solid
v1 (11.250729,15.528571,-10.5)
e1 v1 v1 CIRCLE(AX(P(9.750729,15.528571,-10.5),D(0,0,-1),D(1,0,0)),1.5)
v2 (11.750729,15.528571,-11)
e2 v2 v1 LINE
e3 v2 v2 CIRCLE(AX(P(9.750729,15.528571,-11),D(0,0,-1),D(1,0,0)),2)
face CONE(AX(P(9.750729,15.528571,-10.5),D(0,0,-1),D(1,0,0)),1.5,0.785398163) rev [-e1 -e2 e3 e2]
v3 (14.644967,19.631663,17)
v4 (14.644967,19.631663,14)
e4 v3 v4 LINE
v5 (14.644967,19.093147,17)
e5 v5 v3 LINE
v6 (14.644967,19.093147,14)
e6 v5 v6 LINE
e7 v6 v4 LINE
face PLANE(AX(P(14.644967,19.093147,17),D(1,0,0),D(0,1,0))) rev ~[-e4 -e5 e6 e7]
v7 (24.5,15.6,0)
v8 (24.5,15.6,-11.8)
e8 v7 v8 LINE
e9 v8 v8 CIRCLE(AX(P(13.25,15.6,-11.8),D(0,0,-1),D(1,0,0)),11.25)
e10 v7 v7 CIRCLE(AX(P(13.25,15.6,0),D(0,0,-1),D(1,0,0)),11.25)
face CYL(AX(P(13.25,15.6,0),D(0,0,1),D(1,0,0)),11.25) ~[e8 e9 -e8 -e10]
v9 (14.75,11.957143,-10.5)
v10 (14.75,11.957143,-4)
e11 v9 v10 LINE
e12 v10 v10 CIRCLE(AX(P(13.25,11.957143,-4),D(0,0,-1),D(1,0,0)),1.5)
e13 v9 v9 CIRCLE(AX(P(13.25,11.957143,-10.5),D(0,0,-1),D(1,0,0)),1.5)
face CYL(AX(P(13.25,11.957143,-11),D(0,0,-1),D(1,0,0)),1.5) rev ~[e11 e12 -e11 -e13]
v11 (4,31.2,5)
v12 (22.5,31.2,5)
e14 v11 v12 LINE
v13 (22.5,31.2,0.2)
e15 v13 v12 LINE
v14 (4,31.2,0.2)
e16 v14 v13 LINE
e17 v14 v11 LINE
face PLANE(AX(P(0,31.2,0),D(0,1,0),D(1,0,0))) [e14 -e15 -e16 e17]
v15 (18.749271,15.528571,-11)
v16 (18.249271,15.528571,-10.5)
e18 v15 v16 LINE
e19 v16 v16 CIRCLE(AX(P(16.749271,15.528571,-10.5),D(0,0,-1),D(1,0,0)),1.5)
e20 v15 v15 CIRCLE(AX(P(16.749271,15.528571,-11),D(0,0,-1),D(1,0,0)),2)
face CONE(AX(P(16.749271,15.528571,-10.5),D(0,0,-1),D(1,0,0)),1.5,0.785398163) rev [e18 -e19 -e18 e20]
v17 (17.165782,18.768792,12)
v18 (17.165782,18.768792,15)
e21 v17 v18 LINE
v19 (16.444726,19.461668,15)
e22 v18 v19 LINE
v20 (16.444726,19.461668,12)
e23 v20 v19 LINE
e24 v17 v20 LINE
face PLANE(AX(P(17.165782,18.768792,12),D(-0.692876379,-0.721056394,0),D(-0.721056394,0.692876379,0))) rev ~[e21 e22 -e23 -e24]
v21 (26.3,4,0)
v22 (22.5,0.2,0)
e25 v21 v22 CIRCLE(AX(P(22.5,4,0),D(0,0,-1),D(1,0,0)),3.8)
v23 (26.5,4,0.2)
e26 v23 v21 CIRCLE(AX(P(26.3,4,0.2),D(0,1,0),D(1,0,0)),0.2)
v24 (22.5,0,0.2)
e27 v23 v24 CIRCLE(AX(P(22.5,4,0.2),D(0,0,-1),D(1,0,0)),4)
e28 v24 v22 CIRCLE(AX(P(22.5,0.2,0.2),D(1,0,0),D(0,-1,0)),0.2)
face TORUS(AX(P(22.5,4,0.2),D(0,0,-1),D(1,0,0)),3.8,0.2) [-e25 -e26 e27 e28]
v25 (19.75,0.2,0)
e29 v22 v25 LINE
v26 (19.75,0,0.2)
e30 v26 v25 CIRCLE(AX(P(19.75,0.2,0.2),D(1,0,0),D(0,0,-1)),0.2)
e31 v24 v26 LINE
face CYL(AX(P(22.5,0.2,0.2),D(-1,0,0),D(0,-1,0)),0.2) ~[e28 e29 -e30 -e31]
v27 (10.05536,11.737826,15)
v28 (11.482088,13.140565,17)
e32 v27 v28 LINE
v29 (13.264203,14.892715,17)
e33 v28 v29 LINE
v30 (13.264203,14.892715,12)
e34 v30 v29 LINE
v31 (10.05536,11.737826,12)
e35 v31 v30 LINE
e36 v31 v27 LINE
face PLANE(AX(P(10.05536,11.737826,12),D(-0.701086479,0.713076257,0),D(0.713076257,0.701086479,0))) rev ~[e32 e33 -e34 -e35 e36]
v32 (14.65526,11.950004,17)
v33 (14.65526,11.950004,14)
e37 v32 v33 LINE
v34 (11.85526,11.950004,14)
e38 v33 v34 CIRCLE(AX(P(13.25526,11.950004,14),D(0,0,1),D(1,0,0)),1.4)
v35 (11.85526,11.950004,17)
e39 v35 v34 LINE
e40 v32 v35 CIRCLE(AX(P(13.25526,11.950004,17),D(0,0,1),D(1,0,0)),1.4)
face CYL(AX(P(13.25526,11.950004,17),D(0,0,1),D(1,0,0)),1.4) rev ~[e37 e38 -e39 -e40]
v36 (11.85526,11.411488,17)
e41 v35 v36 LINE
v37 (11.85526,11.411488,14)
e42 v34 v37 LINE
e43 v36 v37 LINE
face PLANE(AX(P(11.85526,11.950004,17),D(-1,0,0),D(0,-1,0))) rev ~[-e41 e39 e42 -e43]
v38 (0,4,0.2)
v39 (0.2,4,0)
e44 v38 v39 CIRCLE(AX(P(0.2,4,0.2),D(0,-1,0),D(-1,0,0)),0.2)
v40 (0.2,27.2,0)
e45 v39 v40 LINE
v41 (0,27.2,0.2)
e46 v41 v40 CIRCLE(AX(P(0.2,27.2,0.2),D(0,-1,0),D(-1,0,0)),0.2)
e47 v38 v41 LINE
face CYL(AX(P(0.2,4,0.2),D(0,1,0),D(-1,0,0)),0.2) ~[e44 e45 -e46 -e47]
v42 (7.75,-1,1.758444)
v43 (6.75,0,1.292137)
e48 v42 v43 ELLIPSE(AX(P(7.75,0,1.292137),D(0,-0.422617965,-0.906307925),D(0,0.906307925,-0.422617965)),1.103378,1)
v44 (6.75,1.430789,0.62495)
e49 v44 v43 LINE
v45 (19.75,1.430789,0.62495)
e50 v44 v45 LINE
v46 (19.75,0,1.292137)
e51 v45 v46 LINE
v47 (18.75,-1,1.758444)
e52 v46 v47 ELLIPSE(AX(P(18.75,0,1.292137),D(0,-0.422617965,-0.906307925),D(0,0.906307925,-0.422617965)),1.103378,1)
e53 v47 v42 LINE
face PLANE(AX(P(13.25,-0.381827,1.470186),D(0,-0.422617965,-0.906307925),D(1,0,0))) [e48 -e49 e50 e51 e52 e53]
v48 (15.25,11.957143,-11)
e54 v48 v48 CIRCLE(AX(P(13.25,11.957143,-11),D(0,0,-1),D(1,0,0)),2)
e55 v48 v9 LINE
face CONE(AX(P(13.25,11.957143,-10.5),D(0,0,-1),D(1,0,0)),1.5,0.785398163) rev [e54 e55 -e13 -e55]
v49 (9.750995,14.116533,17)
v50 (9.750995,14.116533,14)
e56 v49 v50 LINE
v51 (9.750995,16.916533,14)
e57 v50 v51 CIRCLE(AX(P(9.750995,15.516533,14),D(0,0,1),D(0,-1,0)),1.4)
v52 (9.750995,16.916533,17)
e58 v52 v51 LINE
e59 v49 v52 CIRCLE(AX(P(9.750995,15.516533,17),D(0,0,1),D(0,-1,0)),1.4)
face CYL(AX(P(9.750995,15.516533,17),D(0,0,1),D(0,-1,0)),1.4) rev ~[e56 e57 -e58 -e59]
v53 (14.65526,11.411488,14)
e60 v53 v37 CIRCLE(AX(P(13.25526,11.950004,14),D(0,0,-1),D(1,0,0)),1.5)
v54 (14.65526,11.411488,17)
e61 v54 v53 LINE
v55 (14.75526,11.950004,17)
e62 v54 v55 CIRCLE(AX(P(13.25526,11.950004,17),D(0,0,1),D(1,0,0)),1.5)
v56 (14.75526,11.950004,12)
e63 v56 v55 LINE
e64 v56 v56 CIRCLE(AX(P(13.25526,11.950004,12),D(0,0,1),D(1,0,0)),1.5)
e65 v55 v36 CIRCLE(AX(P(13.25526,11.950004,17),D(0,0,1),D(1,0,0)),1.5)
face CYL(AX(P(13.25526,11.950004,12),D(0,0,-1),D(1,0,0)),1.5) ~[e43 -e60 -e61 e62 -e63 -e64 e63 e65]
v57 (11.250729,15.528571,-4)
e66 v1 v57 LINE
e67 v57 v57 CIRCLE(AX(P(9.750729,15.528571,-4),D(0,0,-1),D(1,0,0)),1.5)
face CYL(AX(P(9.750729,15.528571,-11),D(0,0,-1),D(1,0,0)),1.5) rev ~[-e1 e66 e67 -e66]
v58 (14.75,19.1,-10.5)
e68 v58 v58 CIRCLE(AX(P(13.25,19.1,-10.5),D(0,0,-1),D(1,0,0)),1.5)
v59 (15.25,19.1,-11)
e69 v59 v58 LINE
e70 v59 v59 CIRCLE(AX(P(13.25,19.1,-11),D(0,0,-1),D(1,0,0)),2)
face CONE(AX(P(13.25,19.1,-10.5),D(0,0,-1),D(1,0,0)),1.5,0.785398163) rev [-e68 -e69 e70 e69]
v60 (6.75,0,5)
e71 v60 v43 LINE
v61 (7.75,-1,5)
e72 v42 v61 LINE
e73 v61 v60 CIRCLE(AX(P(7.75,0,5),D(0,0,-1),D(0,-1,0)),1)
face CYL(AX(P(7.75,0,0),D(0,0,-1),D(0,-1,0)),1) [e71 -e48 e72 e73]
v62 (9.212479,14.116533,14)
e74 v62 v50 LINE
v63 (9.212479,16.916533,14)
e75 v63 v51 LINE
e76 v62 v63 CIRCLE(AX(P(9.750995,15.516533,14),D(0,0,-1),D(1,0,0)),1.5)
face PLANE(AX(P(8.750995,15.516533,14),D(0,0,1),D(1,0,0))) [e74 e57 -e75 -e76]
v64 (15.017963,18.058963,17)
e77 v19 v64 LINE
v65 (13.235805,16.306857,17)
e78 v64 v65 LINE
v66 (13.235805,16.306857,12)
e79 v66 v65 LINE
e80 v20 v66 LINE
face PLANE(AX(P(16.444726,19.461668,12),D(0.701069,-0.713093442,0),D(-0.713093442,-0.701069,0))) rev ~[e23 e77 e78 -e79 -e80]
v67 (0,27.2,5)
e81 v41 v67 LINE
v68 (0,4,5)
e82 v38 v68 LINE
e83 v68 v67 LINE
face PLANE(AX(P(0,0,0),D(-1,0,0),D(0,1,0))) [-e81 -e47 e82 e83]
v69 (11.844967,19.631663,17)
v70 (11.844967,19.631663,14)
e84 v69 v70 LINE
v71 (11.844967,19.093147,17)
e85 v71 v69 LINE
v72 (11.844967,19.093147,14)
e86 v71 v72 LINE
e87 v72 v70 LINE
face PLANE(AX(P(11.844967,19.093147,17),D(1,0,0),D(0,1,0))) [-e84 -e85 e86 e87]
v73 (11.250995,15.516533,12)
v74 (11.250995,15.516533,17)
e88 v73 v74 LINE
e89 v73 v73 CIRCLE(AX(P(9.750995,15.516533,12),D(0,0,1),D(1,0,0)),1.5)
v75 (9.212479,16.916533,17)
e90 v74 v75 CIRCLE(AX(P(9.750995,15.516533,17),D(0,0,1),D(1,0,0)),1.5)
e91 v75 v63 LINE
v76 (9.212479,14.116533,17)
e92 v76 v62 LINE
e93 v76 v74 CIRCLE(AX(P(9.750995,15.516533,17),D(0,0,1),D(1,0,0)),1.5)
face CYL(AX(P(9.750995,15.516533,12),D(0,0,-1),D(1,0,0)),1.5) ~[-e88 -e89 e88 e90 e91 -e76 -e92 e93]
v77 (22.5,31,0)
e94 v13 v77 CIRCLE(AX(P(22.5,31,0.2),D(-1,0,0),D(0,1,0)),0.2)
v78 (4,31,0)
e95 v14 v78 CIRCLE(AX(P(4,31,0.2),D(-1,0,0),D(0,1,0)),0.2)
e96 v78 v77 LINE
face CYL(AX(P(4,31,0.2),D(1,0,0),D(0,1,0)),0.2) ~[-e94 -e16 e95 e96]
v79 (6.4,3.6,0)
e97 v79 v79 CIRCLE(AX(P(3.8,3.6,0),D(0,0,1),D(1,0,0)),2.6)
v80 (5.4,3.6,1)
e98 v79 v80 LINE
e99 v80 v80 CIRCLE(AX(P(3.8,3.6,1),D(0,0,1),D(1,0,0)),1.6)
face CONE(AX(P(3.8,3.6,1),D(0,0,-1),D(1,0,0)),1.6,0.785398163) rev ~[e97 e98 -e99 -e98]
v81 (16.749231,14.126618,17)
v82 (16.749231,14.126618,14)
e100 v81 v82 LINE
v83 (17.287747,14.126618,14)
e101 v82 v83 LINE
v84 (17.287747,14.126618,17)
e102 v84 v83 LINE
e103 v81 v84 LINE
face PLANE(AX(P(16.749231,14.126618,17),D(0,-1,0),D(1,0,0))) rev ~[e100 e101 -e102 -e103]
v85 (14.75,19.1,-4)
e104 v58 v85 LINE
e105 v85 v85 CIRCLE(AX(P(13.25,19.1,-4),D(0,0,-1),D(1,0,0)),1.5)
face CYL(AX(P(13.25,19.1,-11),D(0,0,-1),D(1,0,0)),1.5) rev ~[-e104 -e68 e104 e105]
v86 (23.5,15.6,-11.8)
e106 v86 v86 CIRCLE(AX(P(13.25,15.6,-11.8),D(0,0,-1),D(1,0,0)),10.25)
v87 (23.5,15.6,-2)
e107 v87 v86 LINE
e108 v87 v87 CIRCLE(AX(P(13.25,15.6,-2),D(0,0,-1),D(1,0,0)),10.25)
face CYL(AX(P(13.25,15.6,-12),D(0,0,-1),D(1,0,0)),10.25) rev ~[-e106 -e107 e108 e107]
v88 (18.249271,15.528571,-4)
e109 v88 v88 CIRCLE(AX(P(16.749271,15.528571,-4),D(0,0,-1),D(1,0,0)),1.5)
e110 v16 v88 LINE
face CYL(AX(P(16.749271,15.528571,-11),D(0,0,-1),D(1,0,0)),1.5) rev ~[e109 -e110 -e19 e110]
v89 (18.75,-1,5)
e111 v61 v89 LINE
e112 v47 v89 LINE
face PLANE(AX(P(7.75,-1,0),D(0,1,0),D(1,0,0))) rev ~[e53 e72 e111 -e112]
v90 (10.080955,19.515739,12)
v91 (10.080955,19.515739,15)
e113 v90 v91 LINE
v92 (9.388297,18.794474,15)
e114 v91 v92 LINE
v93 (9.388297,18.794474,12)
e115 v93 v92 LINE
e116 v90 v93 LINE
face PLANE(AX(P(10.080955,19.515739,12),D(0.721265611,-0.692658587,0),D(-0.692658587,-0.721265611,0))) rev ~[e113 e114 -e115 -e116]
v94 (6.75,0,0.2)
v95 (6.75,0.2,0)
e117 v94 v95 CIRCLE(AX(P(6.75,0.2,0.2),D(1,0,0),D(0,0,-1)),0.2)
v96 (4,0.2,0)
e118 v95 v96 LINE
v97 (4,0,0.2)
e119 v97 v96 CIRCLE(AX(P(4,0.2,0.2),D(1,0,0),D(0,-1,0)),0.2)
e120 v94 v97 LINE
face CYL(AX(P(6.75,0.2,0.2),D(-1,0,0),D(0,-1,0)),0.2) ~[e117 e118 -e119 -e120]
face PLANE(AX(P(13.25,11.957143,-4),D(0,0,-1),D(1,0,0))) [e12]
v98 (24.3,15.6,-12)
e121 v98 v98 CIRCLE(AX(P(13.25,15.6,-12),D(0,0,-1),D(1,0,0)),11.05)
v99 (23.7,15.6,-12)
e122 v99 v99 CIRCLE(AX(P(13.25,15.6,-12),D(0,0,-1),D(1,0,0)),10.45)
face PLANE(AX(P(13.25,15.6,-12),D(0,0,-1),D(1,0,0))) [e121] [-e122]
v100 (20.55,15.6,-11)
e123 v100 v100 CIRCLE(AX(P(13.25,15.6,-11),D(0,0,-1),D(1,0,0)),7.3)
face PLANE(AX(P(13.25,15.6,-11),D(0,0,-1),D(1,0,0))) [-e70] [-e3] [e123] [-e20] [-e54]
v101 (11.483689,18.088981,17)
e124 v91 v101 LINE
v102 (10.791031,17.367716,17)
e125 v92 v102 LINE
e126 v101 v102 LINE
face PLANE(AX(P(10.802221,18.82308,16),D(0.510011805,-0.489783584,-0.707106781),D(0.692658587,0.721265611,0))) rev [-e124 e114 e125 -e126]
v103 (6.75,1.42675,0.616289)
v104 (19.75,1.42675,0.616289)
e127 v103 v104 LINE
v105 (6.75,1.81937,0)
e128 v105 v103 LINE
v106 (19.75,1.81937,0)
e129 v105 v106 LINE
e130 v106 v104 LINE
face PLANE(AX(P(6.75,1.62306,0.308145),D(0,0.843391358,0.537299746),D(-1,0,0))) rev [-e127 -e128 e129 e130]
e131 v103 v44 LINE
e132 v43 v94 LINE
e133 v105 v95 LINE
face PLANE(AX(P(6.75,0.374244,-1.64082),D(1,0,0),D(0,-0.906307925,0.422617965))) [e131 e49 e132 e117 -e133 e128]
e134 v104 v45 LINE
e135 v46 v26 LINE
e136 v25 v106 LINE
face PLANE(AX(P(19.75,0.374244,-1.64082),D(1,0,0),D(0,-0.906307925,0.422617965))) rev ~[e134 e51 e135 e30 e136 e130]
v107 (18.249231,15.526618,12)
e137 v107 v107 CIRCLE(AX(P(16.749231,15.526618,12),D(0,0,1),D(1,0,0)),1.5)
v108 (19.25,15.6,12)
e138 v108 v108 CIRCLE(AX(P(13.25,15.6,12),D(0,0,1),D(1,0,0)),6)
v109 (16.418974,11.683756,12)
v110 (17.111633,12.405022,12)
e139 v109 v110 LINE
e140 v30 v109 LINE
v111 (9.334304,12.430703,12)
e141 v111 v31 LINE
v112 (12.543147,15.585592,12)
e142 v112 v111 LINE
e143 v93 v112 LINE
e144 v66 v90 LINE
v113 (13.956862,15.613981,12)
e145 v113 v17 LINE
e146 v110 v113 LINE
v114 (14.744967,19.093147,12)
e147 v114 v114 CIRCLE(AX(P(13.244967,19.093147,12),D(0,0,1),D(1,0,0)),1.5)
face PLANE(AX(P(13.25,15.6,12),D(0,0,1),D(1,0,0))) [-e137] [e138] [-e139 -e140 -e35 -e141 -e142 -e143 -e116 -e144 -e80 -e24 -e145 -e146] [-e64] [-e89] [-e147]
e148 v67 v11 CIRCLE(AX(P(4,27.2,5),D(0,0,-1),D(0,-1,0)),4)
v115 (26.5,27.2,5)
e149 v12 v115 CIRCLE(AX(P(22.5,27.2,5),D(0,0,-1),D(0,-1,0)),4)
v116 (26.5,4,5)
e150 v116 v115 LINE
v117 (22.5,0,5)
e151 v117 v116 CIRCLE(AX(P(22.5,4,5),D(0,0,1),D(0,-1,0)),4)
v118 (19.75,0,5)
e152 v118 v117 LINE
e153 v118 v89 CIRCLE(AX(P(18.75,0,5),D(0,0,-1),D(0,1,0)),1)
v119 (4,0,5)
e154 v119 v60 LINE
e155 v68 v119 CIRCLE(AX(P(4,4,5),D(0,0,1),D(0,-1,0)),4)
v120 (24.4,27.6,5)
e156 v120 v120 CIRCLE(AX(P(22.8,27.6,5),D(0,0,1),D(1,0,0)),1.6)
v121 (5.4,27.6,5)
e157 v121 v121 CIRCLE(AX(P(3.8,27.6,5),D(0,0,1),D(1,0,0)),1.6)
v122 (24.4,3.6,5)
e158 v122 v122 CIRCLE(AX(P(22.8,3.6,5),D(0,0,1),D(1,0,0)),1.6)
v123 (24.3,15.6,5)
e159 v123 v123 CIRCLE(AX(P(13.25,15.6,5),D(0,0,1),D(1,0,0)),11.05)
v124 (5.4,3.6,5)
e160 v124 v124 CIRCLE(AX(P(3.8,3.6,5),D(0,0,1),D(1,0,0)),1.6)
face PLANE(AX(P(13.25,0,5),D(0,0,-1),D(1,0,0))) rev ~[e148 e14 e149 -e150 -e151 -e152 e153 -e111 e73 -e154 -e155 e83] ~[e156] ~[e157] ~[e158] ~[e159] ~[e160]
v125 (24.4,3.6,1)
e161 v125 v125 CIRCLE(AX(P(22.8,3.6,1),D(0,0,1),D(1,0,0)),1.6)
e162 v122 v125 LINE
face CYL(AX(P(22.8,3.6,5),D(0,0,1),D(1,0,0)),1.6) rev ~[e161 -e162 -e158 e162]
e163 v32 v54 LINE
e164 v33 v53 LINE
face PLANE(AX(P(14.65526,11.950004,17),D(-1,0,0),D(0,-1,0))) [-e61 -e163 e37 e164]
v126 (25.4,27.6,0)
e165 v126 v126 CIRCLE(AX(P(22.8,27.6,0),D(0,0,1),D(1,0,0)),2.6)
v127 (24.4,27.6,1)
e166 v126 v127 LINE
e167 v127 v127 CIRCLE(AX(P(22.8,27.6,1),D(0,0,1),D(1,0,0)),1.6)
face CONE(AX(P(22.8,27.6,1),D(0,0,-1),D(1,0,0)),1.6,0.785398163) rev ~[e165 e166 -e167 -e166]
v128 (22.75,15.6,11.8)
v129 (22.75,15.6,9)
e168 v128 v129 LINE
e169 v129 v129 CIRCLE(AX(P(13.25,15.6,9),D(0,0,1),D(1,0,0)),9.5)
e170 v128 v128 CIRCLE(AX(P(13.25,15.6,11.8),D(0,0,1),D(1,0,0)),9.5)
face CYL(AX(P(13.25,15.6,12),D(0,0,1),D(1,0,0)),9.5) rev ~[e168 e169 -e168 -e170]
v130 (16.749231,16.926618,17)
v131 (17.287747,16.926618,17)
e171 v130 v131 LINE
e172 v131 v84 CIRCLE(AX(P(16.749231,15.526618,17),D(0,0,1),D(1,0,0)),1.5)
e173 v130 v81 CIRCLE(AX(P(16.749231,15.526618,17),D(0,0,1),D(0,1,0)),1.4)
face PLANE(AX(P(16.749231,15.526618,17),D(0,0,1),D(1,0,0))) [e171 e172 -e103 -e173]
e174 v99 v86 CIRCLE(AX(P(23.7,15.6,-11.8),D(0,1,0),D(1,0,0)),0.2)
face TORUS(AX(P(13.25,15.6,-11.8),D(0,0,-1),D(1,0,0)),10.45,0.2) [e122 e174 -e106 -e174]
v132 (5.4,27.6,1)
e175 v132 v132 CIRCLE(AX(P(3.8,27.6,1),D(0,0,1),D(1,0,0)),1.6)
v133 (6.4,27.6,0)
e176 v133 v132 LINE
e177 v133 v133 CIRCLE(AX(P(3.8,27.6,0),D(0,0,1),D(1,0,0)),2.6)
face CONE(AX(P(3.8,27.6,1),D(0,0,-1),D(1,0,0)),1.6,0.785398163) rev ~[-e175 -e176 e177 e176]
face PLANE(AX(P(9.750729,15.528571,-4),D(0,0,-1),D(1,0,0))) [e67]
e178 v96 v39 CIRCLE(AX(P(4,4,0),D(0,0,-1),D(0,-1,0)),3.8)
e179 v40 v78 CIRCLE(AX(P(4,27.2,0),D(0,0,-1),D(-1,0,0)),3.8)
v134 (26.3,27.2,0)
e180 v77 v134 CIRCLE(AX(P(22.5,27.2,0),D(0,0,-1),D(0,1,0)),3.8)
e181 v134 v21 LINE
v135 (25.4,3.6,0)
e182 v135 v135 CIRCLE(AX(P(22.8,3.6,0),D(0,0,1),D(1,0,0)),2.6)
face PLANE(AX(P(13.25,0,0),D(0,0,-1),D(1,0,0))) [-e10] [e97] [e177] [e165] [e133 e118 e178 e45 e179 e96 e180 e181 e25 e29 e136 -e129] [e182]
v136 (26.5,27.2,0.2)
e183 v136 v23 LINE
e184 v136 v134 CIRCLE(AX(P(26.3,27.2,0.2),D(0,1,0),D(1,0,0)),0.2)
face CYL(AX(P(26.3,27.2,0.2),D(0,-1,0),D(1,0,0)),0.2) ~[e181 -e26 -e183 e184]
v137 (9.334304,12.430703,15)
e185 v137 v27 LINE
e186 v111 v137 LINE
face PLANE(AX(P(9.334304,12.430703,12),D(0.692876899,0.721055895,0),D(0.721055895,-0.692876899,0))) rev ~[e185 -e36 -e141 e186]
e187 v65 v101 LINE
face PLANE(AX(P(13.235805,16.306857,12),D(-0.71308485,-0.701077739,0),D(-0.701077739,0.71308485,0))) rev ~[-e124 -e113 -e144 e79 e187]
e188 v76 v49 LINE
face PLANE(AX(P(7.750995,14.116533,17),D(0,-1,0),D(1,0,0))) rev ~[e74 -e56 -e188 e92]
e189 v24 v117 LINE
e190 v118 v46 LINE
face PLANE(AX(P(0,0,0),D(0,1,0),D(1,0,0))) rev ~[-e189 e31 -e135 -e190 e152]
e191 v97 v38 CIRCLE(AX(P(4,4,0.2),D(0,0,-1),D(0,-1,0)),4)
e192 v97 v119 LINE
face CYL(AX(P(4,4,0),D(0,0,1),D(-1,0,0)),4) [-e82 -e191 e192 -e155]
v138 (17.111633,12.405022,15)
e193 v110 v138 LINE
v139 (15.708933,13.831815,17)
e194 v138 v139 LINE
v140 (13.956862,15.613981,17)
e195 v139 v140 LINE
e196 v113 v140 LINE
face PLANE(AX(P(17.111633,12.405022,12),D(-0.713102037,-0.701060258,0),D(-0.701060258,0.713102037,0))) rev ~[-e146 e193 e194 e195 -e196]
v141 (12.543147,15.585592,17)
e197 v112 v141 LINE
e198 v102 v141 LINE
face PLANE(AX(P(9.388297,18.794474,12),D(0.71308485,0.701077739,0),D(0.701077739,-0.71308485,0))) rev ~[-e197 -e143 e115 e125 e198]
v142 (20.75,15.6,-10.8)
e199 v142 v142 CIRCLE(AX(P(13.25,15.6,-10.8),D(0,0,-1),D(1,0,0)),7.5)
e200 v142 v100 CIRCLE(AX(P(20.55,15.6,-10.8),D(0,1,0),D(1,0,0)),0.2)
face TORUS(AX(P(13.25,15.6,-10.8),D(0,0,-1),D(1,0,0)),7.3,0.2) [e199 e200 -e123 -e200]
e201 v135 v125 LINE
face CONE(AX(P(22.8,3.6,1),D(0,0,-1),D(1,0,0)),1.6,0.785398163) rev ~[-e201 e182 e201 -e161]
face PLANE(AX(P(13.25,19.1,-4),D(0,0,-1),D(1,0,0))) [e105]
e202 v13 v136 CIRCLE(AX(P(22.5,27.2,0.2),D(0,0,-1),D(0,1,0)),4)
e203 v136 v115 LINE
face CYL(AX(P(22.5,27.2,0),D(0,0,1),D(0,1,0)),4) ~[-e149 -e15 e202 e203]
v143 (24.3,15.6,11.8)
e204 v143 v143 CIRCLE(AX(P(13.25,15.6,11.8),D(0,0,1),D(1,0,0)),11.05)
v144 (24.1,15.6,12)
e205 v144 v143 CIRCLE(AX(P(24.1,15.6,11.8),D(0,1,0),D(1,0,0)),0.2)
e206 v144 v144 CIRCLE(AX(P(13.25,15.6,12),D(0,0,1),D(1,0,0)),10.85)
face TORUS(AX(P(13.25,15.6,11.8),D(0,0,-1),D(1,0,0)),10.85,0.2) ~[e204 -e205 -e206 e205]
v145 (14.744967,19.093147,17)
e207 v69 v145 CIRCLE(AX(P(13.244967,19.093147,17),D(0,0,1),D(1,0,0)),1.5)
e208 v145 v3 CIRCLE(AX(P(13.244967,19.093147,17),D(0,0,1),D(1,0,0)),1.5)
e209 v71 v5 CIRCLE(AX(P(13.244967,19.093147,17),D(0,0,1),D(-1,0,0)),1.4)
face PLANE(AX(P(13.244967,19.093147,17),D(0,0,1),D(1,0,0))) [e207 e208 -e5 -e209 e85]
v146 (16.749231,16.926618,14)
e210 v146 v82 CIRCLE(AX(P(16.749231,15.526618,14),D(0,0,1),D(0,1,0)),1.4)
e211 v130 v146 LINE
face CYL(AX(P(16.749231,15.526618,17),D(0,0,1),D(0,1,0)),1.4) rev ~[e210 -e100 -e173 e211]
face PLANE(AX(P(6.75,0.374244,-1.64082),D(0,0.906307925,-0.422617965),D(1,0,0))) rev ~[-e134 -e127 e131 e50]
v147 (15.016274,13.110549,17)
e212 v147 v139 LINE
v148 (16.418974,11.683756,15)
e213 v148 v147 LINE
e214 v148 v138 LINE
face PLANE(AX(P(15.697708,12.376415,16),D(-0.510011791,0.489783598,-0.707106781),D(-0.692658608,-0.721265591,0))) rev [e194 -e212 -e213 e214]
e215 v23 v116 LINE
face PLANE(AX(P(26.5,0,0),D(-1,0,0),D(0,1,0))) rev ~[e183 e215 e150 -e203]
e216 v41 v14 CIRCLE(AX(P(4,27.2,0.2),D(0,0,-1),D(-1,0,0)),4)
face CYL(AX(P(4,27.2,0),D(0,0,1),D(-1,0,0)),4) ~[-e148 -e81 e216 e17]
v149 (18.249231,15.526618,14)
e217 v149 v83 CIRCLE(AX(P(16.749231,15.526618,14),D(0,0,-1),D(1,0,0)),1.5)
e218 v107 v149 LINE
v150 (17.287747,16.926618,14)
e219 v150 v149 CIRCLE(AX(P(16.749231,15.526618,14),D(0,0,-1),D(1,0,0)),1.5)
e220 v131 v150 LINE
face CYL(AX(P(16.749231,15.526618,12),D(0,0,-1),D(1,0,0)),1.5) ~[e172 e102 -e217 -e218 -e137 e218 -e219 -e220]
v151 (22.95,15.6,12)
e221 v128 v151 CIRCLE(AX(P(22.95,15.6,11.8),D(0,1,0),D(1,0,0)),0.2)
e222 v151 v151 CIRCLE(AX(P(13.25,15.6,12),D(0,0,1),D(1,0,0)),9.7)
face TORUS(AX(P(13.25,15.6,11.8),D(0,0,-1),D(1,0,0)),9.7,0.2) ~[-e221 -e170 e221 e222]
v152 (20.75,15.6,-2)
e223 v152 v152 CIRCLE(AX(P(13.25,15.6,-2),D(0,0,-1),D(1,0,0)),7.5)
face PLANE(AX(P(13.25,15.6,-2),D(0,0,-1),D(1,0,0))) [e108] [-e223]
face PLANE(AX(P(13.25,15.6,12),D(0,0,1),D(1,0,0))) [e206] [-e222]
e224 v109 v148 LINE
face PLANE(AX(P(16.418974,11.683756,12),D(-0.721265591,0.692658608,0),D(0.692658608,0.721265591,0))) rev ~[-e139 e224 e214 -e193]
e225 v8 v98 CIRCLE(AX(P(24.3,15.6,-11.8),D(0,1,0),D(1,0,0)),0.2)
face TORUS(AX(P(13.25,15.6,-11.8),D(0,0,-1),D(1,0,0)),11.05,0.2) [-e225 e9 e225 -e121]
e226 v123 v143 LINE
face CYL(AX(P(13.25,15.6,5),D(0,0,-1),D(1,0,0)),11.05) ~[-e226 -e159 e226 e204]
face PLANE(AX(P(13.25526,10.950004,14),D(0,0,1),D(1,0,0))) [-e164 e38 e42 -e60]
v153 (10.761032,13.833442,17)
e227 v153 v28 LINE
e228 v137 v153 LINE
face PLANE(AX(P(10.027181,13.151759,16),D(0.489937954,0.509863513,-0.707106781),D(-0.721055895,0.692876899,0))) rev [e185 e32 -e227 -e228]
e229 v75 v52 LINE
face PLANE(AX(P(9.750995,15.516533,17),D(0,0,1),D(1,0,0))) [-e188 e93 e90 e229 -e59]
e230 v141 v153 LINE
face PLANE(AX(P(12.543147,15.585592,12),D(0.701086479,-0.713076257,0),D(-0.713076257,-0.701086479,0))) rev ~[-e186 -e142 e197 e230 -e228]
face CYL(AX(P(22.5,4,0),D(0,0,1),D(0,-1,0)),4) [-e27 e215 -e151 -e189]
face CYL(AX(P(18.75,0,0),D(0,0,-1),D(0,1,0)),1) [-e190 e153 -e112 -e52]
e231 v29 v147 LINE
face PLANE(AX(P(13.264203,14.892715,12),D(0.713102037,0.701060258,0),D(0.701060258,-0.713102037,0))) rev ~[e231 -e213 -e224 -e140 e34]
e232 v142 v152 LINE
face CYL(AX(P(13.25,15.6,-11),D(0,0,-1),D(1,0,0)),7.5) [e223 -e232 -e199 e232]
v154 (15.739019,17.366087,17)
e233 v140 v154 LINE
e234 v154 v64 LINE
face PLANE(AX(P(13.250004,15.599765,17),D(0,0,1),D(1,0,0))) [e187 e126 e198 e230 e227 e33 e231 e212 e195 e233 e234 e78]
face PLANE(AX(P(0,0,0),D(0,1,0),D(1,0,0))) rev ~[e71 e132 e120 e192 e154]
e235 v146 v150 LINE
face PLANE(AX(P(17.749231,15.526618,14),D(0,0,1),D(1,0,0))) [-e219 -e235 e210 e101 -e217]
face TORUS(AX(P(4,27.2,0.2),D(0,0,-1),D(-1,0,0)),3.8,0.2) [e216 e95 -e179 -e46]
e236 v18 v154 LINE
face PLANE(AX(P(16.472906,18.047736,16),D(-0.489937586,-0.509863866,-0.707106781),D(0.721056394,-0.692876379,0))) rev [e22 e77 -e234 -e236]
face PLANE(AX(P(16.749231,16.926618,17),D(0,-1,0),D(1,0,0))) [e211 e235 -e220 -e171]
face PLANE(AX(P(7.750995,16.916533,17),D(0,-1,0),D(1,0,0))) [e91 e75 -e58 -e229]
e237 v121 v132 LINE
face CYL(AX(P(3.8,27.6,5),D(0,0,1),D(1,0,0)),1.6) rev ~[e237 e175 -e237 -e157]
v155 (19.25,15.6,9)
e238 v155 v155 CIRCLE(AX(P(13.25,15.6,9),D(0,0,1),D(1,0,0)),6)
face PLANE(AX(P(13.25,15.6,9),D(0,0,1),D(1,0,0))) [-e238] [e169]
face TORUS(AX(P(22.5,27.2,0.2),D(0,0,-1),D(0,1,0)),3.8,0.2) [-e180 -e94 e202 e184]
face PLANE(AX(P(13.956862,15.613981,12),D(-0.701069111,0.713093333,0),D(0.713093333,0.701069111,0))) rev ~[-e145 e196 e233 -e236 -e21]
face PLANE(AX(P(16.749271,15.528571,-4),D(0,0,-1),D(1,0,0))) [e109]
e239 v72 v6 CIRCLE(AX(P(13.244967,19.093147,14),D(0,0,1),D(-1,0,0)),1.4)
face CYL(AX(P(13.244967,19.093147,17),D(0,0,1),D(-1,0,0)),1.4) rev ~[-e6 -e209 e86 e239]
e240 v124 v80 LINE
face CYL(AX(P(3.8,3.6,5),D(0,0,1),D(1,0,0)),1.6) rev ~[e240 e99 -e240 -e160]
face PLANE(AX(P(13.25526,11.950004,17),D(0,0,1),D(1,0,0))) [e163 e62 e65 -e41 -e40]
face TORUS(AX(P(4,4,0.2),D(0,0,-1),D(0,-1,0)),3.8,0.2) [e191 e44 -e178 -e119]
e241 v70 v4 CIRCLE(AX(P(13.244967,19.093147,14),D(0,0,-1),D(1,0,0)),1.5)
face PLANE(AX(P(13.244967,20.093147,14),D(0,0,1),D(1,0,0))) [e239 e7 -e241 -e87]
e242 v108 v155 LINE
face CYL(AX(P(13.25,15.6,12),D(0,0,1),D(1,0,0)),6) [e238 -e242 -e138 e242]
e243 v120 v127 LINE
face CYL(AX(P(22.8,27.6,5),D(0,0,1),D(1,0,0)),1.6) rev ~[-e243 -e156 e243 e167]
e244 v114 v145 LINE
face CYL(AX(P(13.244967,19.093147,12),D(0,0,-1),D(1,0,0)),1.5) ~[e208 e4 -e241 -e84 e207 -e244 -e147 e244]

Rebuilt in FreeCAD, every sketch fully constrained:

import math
import FreeCAD as App
import Part
import Sketcher
from FreeCAD import Vector
Q = App.Units.Quantity


def edges_at(feature, points):
    """Names of the edges that pass closest to the given points."""
    edges = feature.Shape.Edges
    near = lambda p: min(range(len(edges)), key=lambda i: edges[i].distToShape(Part.Vertex(*p))[0])
    return sorted({f"Edge{near(p) + 1}" for p in points})

doc = App.newDocument("Part")
params = doc.addObject("Spreadsheet::Sheet", "Params")
for row, (alias, value) in enumerate([
    ("sketch1_width", "26.5 mm"),
    ("sketch1_height", "31.2 mm"),
    ("pad1_length", "5 mm"),
    ("sketch2_diameter", "3.2 mm"),
    ("pocket1_length", "5 mm"),
    ("fillet_radius", "4 mm"),
    ("sketch3_diameter", "22.5 mm"),
    ("pad2_length", "12 mm"),
    ("sketch4_diameter", "22.1 mm"),
    ("pad3_length", "7 mm"),
    ("chamfer_size", "1 mm"),
    ("sketch5_radius", "1 mm"),
    ("sketch5_width", "11 mm"),
    ("pad4_length", "5 mm"),
    ("sketch6_width", "13 mm"),
    ("sketch6_height", "4 mm"),
    ("pocket2_length", "2.5 mm"),
    ("chamfer2_size", "0.68 mm"),
    ("sketch7_diameter", "20.5 mm"),
    ("pocket3_length", "1 mm"),
    ("sketch8_diameter", "15 mm"),
    ("sketch8_diameter2", "20.5 mm"),
    ("pocket4_length", "9 mm"),
    ("sketch9_diameter", "3 mm"),
    ("pocket5_length", "7 mm"),
    ("chamfer3_size", "0.5 mm"),
    ("sketch10_diameter", "3 mm"),
    ("sketch10_length", "0.999999 mm"),
    ("sketch10_length2", "4.5 mm"),
    ("pad5_length", "5 mm"),
    ("chamfer4_size", "2 mm"),
    ("sketch11_radius", "1.4 mm"),
    ("sketch11_width", "2 mm"),
    ("pocket6_length", "3 mm"),
    ("sketch12_diameter", "19 mm"),
    ("sketch12_diameter2", "12 mm"),
    ("pocket7_length", "3 mm"),
    ("fillet2_radius", "0.2 mm"),
], start=1):
    params.set(f"A{row}", alias)
    params.set(f"B{row}", "=" + value)
    params.setAlias(f"B{row}", alias)

body = doc.addObject("PartDesign::Body", "Body")

sketch1 = body.newObject("Sketcher::SketchObject", "Sketch")
sketch1.AttachmentSupport = (doc.getObject("XY_Plane"), [""])
sketch1.MapMode = "FlatFace"
sketch1.addGeometry([
    Part.LineSegment(Vector(0, 31.2, 0), Vector(0, 0, 0)),
    Part.LineSegment(Vector(0, 0, 0), Vector(26.5, 0, 0)),
    Part.LineSegment(Vector(26.5, 0, 0), Vector(26.5, 31.2, 0)),
    Part.LineSegment(Vector(26.5, 31.2, 0), Vector(0, 31.2, 0)),
], False)
sketch1.addConstraint([
    Sketcher.Constraint("Coincident", 0, 2, 1, 1),
    Sketcher.Constraint("Coincident", 1, 2, 2, 1),
    Sketcher.Constraint("Coincident", 2, 2, 3, 1),
    Sketcher.Constraint("Coincident", 3, 2, 0, 1),
    Sketcher.Constraint("Vertical", 0),
    Sketcher.Constraint("Horizontal", 1),
    Sketcher.Constraint("Vertical", 2),
    Sketcher.Constraint("Horizontal", 3),
    Sketcher.Constraint("Coincident", 0, 2, -1, 1),
    Sketcher.Constraint("DistanceX", 1, 1, 1, 2, Q("26.5 mm")),
    Sketcher.Constraint("DistanceY", 0, 2, 0, 1, Q("31.2 mm")),
])
sketch1.setExpression("Constraints[9]", "Params.sketch1_width")
sketch1.setExpression("Constraints[10]", "Params.sketch1_height")
pad1 = body.newObject("PartDesign::Pad", "Pad")
pad1.Profile = sketch1
pad1.setExpression("Length", "Params.pad1_length")

sketch2 = body.newObject("Sketcher::SketchObject", "Sketch001")
sketch2.AttachmentSupport = (doc.getObject("XY_Plane"), [""])
sketch2.MapMode = "FlatFace"
sketch2.AttachmentOffset = App.Placement(Vector(0, 0, 5), App.Rotation())
sketch2.addGeometry([
    Part.Circle(Vector(3.8, 27.6, 0), Vector(0, 0, 1), 1.6),
    Part.Circle(Vector(22.8, 27.6, 0), Vector(0, 0, 1), 1.6),
    Part.Circle(Vector(22.8, 3.6, 0), Vector(0, 0, 1), 1.6),
    Part.Circle(Vector(3.8, 3.6, 0), Vector(0, 0, 1), 1.6),
], False)
sketch2.addConstraint([
    Sketcher.Constraint("Equal", 0, 1),
    Sketcher.Constraint("Equal", 1, 2),
    Sketcher.Constraint("Equal", 2, 3),
    Sketcher.Constraint("Horizontal", 0, 3, 1, 3),
    Sketcher.Constraint("Horizontal", 2, 3, 3, 3),
    Sketcher.Constraint("Vertical", 1, 3, 2, 3),
    Sketcher.Constraint("Vertical", 0, 3, 3, 3),
    Sketcher.Constraint("Diameter", 0, Q("3.2 mm")),
    Sketcher.Constraint("DistanceX", 0, 3, 1, 3, Q("19 mm")),
    Sketcher.Constraint("DistanceY", 2, 3, 1, 3, Q("24 mm")),
    Sketcher.Constraint("DistanceX", -1, 1, 0, 3, Q("3.8 mm")),
    Sketcher.Constraint("DistanceY", -1, 1, 0, 3, Q("27.6 mm")),
])
sketch2.setExpression("Constraints[7]", "Params.sketch2_diameter")
pocket1 = body.newObject("PartDesign::Pocket", "Pocket")
pocket1.Profile = sketch2
pocket1.setExpression("Length", "Params.pocket1_length")
doc.recompute()

fillet = body.newObject("PartDesign::Fillet", "Fillet")
fillet.Base = (pocket1, edges_at(pocket1, [
    (26.5, 31.2, 2.5),
    (26.5, 0, 2.5),
    (0, 31.2, 2.5),
    (0, 0, 2.5),
]))
fillet.setExpression("Radius", "Params.fillet_radius")

sketch3 = body.newObject("Sketcher::SketchObject", "Sketch002")
sketch3.AttachmentSupport = (doc.getObject("XY_Plane"), [""])
sketch3.MapMode = "FlatFace"
sketch3.addGeometry(Part.Circle(Vector(13.25, 15.6, 0), Vector(0, 0, 1), 11.25), False)
sketch3.addConstraint([
    Sketcher.Constraint("Diameter", 0, Q("22.5 mm")),
    Sketcher.Constraint("DistanceY", -1, 1, 0, 3, Q("15.6 mm")),
    Sketcher.Constraint("DistanceX", -1, 1, 0, 3, Q("13.25 mm")),
])
sketch3.setExpression("Constraints[0]", "Params.sketch3_diameter")
pad2 = body.newObject("PartDesign::Pad", "Pad001")
pad2.Profile = sketch3
pad2.setExpression("Length", "Params.pad2_length")
pad2.Reversed = True

sketch4 = body.newObject("Sketcher::SketchObject", "Sketch003")
sketch4.AttachmentSupport = (doc.getObject("XY_Plane"), [""])
sketch4.MapMode = "FlatFace"
sketch4.AttachmentOffset = App.Placement(Vector(0, 0, 5), App.Rotation())
sketch4.addGeometry(Part.Circle(Vector(13.25, 15.6, 0), Vector(0, 0, 1), 11.05), False)
sketch4.addConstraint([
    Sketcher.Constraint("Diameter", 0, Q("22.1 mm")),
    Sketcher.Constraint("DistanceY", -1, 1, 0, 3, Q("15.6 mm")),
    Sketcher.Constraint("DistanceX", -1, 1, 0, 3, Q("13.25 mm")),
])
sketch4.setExpression("Constraints[0]", "Params.sketch4_diameter")
pad3 = body.newObject("PartDesign::Pad", "Pad002")
pad3.Profile = sketch4
pad3.setExpression("Length", "Params.pad3_length")
doc.recompute()

chamfer = body.newObject("PartDesign::Chamfer", "Chamfer")
chamfer.Base = (pad3, edges_at(pad3, [
    (21.2, 27.6, 0),
    (2.2, 3.6, 0),
    (21.2, 3.6, 0),
    (2.2, 27.6, 0),
]))
chamfer.setExpression("Size", "Params.chamfer_size")

sketch5 = body.newObject("Sketcher::SketchObject", "Sketch004")
sketch5.AttachmentSupport = (doc.getObject("XY_Plane"), [""])
sketch5.MapMode = "FlatFace"
sketch5.addGeometry([
    Part.ArcOfCircle(Part.Circle(Vector(7.75, 0, 0), Vector(0, 0, 1), 1), math.radians(90), math.radians(270)),
    Part.LineSegment(Vector(7.75, 1, 0), Vector(18.75, 1, 0)),
    Part.ArcOfCircle(Part.Circle(Vector(18.75, 0, 0), Vector(0, 0, 1), 1), math.radians(-90), math.radians(90)),
    Part.LineSegment(Vector(18.75, -1, 0), Vector(7.75, -1, 0)),
], False)
sketch5.addConstraint([
    Sketcher.Constraint("Tangent", 0, 1, 1, 1),
    Sketcher.Constraint("Tangent", 1, 2, 2, 2),
    Sketcher.Constraint("Tangent", 2, 1, 3, 1),
    Sketcher.Constraint("Tangent", 3, 2, 0, 2),
    Sketcher.Constraint("Horizontal", 1),
    Sketcher.Constraint("Horizontal", 3),
    Sketcher.Constraint("PointOnObject", 0, 3, -1),
    Sketcher.Constraint("Radius", 0, Q("1 mm")),
    Sketcher.Constraint("DistanceX", 1, 1, 1, 2, Q("11 mm")),
    Sketcher.Constraint("DistanceX", -1, 1, 0, 3, Q("7.75 mm")),
])
sketch5.setExpression("Constraints[7]", "Params.sketch5_radius")
sketch5.setExpression("Constraints[8]", "Params.sketch5_width")
pad4 = body.newObject("PartDesign::Pad", "Pad003")
pad4.Profile = sketch5
pad4.setExpression("Length", "Params.pad4_length")

sketch6 = body.newObject("Sketcher::SketchObject", "Sketch005")
sketch6.Placement = App.Placement(Vector(0, -1, -1), App.Rotation(Vector(1, 0, 0), Vector(0, -0.906307925, 0.422617965), Vector(0, -0.422617965, -0.906307925), "ZXY"))
sketch6.addGeometry([
    Part.LineSegment(Vector(6.75, 2.48369, 0), Vector(6.75, -1.51631, 0)),
    Part.LineSegment(Vector(6.75, -1.51631, 0), Vector(19.75, -1.51631, 0)),
    Part.LineSegment(Vector(19.75, -1.51631, 0), Vector(19.75, 2.48369, 0)),
    Part.LineSegment(Vector(19.75, 2.48369, 0), Vector(6.75, 2.48369, 0)),
], False)
sketch6.addConstraint([
    Sketcher.Constraint("Coincident", 0, 2, 1, 1),
    Sketcher.Constraint("Coincident", 1, 2, 2, 1),
    Sketcher.Constraint("Coincident", 2, 2, 3, 1),
    Sketcher.Constraint("Coincident", 3, 2, 0, 1),
    Sketcher.Constraint("Vertical", 0),
    Sketcher.Constraint("Horizontal", 1),
    Sketcher.Constraint("Vertical", 2),
    Sketcher.Constraint("Horizontal", 3),
    Sketcher.Constraint("DistanceX", 1, 1, 1, 2, Q("13 mm")),
    Sketcher.Constraint("DistanceY", 0, 2, 0, 1, Q("4 mm")),
    Sketcher.Constraint("DistanceX", -1, 1, 0, 2, Q("6.75 mm")),
    Sketcher.Constraint("DistanceY", 0, 2, -1, 1, Q("1.51631 mm")),
])
sketch6.setExpression("Constraints[8]", "Params.sketch6_width")
sketch6.setExpression("Constraints[9]", "Params.sketch6_height")
pocket2 = body.newObject("PartDesign::Pocket", "Pocket001")
pocket2.Profile = sketch6
pocket2.setExpression("Length", "Params.pocket2_length")
doc.recompute()

chamfer2 = body.newObject("PartDesign::Chamfer", "Chamfer001")
chamfer2.Base = (pocket2, edges_at(pocket2, [(13.25, 1.139, 0)]))
chamfer2.setExpression("Size", "Params.chamfer2_size")

sketch7 = body.newObject("Sketcher::SketchObject", "Sketch006")
sketch7.AttachmentSupport = (doc.getObject("XY_Plane"), [""])
sketch7.MapMode = "FlatFace"
sketch7.AttachmentOffset = App.Placement(Vector(0, 0, -12), App.Rotation())
sketch7.addGeometry(Part.Circle(Vector(13.25, 15.6, 0), Vector(0, 0, 1), 10.25), False)
sketch7.addConstraint([
    Sketcher.Constraint("Diameter", 0, Q("20.5 mm")),
    Sketcher.Constraint("DistanceY", -1, 1, 0, 3, Q("15.6 mm")),
    Sketcher.Constraint("DistanceX", -1, 1, 0, 3, Q("13.25 mm")),
])
sketch7.setExpression("Constraints[0]", "Params.sketch7_diameter")
pocket3 = body.newObject("PartDesign::Pocket", "Pocket002")
pocket3.Profile = sketch7
pocket3.setExpression("Length", "Params.pocket3_length")
pocket3.Reversed = True

sketch8 = body.newObject("Sketcher::SketchObject", "Sketch007")
sketch8.AttachmentSupport = (doc.getObject("XY_Plane"), [""])
sketch8.MapMode = "FlatFace"
sketch8.AttachmentOffset = App.Placement(Vector(0, 0, -11), App.Rotation())
sketch8.addGeometry([
    Part.Circle(Vector(13.25, 15.6, 0), Vector(0, 0, 1), 10.25),
    Part.Circle(Vector(13.25, 15.6, 0), Vector(0, 0, 1), 7.5),
], False)
sketch8.addConstraint([
    Sketcher.Constraint("Coincident", 1, 3, 0, 3),
    Sketcher.Constraint("Diameter", 1, Q("15 mm")),
    Sketcher.Constraint("Diameter", 0, Q("20.5 mm")),
    Sketcher.Constraint("DistanceY", -1, 1, 0, 3, Q("15.6 mm")),
    Sketcher.Constraint("DistanceX", -1, 1, 0, 3, Q("13.25 mm")),
])
sketch8.setExpression("Constraints[1]", "Params.sketch8_diameter")
sketch8.setExpression("Constraints[2]", "Params.sketch8_diameter2")
pocket4 = body.newObject("PartDesign::Pocket", "Pocket003")
pocket4.Profile = sketch8
pocket4.setExpression("Length", "Params.pocket4_length")
pocket4.Reversed = True

sketch9 = body.newObject("Sketcher::SketchObject", "Sketch008")
sketch9.AttachmentSupport = (doc.getObject("XY_Plane"), [""])
sketch9.MapMode = "FlatFace"
sketch9.AttachmentOffset = App.Placement(Vector(0, 0, -11), App.Rotation())
sketch9.addGeometry([
    Part.Circle(Vector(13.25, 11.957143, 0), Vector(0, 0, 1), 1.5),
    Part.Circle(Vector(16.749271, 15.528571, 0), Vector(0, 0, 1), 1.5),
    Part.Circle(Vector(9.750729, 15.528571, 0), Vector(0, 0, 1), 1.5),
    Part.Circle(Vector(13.25, 19.1, 0), Vector(0, 0, 1), 1.5),
], False)
sketch9.addConstraint([
    Sketcher.Constraint("Equal", 0, 1),
    Sketcher.Constraint("Equal", 1, 2),
    Sketcher.Constraint("Equal", 2, 3),
    Sketcher.Constraint("Horizontal", 1, 3, 2, 3),
    Sketcher.Constraint("Vertical", 0, 3, 3, 3),
    Sketcher.Constraint("Diameter", 0, Q("3 mm")),
    Sketcher.Constraint("DistanceY", -1, 1, 3, 3, Q("19.1 mm")),
    Sketcher.Constraint("DistanceX", -1, 1, 0, 3, Q("13.25 mm")),
    Sketcher.Constraint("DistanceX", -1, 1, 1, 3, Q("16.749271 mm")),
    Sketcher.Constraint("DistanceY", -1, 1, 1, 3, Q("15.528571 mm")),
    Sketcher.Constraint("DistanceX", -1, 1, 2, 3, Q("9.750729 mm")),
    Sketcher.Constraint("DistanceY", -1, 1, 0, 3, Q("11.957143 mm")),
])
sketch9.setExpression("Constraints[5]", "Params.sketch9_diameter")
pocket5 = body.newObject("PartDesign::Pocket", "Pocket004")
pocket5.Profile = sketch9
pocket5.setExpression("Length", "Params.pocket5_length")
pocket5.Reversed = True
doc.recompute()

chamfer3 = body.newObject("PartDesign::Chamfer", "Chamfer002")
chamfer3.Base = (pocket5, edges_at(pocket5, [
    (11.75, 19.1, -11),
    (15.249, 15.529, -11),
    (11.75, 11.957, -11),
    (8.251, 15.529, -11),
]))
chamfer3.setExpression("Size", "Params.chamfer3_size")

sketch10 = body.newObject("Sketcher::SketchObject", "Sketch009")
sketch10.AttachmentSupport = (doc.getObject("XY_Plane"), [""])
sketch10.MapMode = "FlatFace"
sketch10.AttachmentOffset = App.Placement(Vector(0, 0, 12), App.Rotation())
sketch10.addGeometry([
    Part.Circle(Vector(9.750995, 15.516533, 0), Vector(0, 0, 1), 1.5),
    Part.Circle(Vector(13.244967, 19.093147, 0), Vector(0, 0, 1), 1.5),
    Part.Circle(Vector(16.749231, 15.526618, 0), Vector(0, 0, 1), 1.5),
    Part.Circle(Vector(13.25526, 11.950004, 0), Vector(0, 0, 1), 1.5),
    Part.LineSegment(Vector(10.080955, 19.515739, 0), Vector(9.388297, 18.794474, 0)),
    Part.LineSegment(Vector(9.388297, 18.794474, 0), Vector(12.543147, 15.585592, 0)),
    Part.LineSegment(Vector(12.543147, 15.585592, 0), Vector(9.334304, 12.430703, 0)),
    Part.LineSegment(Vector(9.334304, 12.430703, 0), Vector(10.05536, 11.737826, 0)),
    Part.LineSegment(Vector(10.05536, 11.737826, 0), Vector(13.264203, 14.892715, 0)),
    Part.LineSegment(Vector(13.264203, 14.892715, 0), Vector(16.418974, 11.683756, 0)),
    Part.LineSegment(Vector(16.418974, 11.683756, 0), Vector(17.111633, 12.405022, 0)),
    Part.LineSegment(Vector(17.111633, 12.405022, 0), Vector(13.956862, 15.613981, 0)),
    Part.LineSegment(Vector(13.956862, 15.613981, 0), Vector(17.165782, 18.768792, 0)),
    Part.LineSegment(Vector(17.165782, 18.768792, 0), Vector(16.444726, 19.461668, 0)),
    Part.LineSegment(Vector(16.444726, 19.461668, 0), Vector(13.235805, 16.306857, 0)),
    Part.LineSegment(Vector(13.235805, 16.306857, 0), Vector(10.080955, 19.515739, 0)),
], False)
sketch10.addConstraint([
    Sketcher.Constraint("Coincident", 4, 2, 5, 1),
    Sketcher.Constraint("Coincident", 5, 2, 6, 1),
    Sketcher.Constraint("Coincident", 6, 2, 7, 1),
    Sketcher.Constraint("Coincident", 7, 2, 8, 1),
    Sketcher.Constraint("Coincident", 8, 2, 9, 1),
    Sketcher.Constraint("Coincident", 9, 2, 10, 1),
    Sketcher.Constraint("Coincident", 10, 2, 11, 1),
    Sketcher.Constraint("Coincident", 11, 2, 12, 1),
    Sketcher.Constraint("Coincident", 12, 2, 13, 1),
    Sketcher.Constraint("Coincident", 13, 2, 14, 1),
    Sketcher.Constraint("Coincident", 14, 2, 15, 1),
    Sketcher.Constraint("Coincident", 15, 2, 4, 1),
    Sketcher.Constraint("Equal", 0, 1),
    Sketcher.Constraint("Equal", 1, 2),
    Sketcher.Constraint("Equal", 2, 3),
    Sketcher.Constraint("Parallel", 6, 8),
    Sketcher.Constraint("Parallel", 4, 10),
    Sketcher.Constraint("Parallel", 9, 11),
    Sketcher.Constraint("Parallel", 7, 13),
    Sketcher.Constraint("Parallel", 12, 14),
    Sketcher.Constraint("Parallel", 5, 15),
    Sketcher.Constraint("Equal", 5, 6),
    Sketcher.Constraint("Equal", 4, 7),
    Sketcher.Constraint("Equal", 6, 8),
    Sketcher.Constraint("Equal", 8, 9),
    Sketcher.Constraint("Equal", 7, 10),
    Sketcher.Constraint("Equal", 9, 11),
    Sketcher.Constraint("Equal", 11, 12),
    Sketcher.Constraint("Equal", 10, 13),
    Sketcher.Constraint("Diameter", 0, Q("3 mm")),
    Sketcher.Constraint("Distance", 4, Q("0.999999 mm")),
    Sketcher.Constraint("Distance", 5, Q("4.5 mm")),
    Sketcher.Constraint("DistanceY", 3, 3, 6, 2, Q("0.480699 mm")),
    Sketcher.Constraint("DistanceX", 7, 2, 3, 3, Q("3.1999 mm")),
    Sketcher.Constraint("DistanceX", 2, 3, 10, 2, Q("0.362402 mm")),
    Sketcher.Constraint("DistanceX", 3, 3, 11, 2, Q("0.701602 mm")),
    Sketcher.Constraint("DistanceY", 5, 2, 12, 2, Q("3.1832 mm")),
    Sketcher.Constraint("DistanceX", 14, 2, 8, 2, Q("0.028398 mm")),
    Sketcher.Constraint("DistanceX", -1, 1, 2, 3, Q("16.749231 mm")),
    Sketcher.Constraint("DistanceX", -1, 1, 3, 3, Q("13.25526 mm")),
    Sketcher.Constraint("DistanceY", -1, 1, 11, 2, Q("15.613981 mm")),
    Sketcher.Constraint("DistanceX", -1, 1, 12, 2, Q("17.165782 mm")),
    Sketcher.Constraint("DistanceY", -1, 1, 15, 2, Q("19.515739 mm")),
    Sketcher.Constraint("DistanceY", 2, 3, 1, 3, Q("3.566529 mm")),
    Sketcher.Constraint("DistanceY", 3, 3, 0, 3, Q("3.566529 mm")),
    Sketcher.Constraint("DistanceX", 4, 2, 1, 3, Q("3.85667 mm")),
    Sketcher.Constraint("DistanceX", 0, 3, 5, 2, Q("2.792152 mm")),
    Sketcher.Constraint("DistanceY", 8, 2, 1, 3, Q("4.200432 mm")),
])
sketch10.setExpression("Constraints[29]", "Params.sketch10_diameter")
sketch10.setExpression("Constraints[30]", "Params.sketch10_length")
sketch10.setExpression("Constraints[31]", "Params.sketch10_length2")
pad5 = body.newObject("PartDesign::Pad", "Pad004")
pad5.Profile = sketch10
pad5.setExpression("Length", "Params.pad5_length")
doc.recompute()

chamfer4 = body.newObject("PartDesign::Chamfer", "Chamfer003")
chamfer4.Base = (pad5, edges_at(pad5, [
    (9.735, 19.155, 17),
    (16.805, 19.115, 17),
    (16.765, 12.044, 17),
    (9.695, 12.084, 17),
]))
chamfer4.setExpression("Size", "Params.chamfer4_size")

sketch11 = body.newObject("Sketcher::SketchObject", "Sketch010")
sketch11.AttachmentSupport = (doc.getObject("XY_Plane"), [""])
sketch11.MapMode = "FlatFace"
sketch11.AttachmentOffset = App.Placement(Vector(0, 0, 17), App.Rotation())
sketch11.addGeometry([
    Part.ArcOfCircle(Part.Circle(Vector(13.244967, 19.093147, 0), Vector(0, 0, 1), 1.4), math.radians(180), math.radians(360)),
    Part.LineSegment(Vector(14.644967, 19.093147, 0), Vector(14.644967, 21.093147, 0)),
    Part.ArcOfCircle(Part.Circle(Vector(13.244967, 21.093147, 0), Vector(0, 0, 1), 1.4), math.radians(0), math.radians(180)),
    Part.LineSegment(Vector(11.844967, 21.093147, 0), Vector(11.844967, 19.093147, 0)),
    Part.ArcOfCircle(Part.Circle(Vector(16.749231, 15.526618, 0), Vector(0, 0, 1), 1.4), math.radians(90), math.radians(270)),
    Part.LineSegment(Vector(16.749231, 14.126618, 0), Vector(18.749231, 14.126618, 0)),
    Part.ArcOfCircle(Part.Circle(Vector(18.749231, 15.526618, 0), Vector(0, 0, 1), 1.4), math.radians(-90), math.radians(90)),
    Part.LineSegment(Vector(18.749231, 16.926618, 0), Vector(16.749231, 16.926618, 0)),
    Part.ArcOfCircle(Part.Circle(Vector(13.25526, 11.950004, 0), Vector(0, 0, 1), 1.4), math.radians(0), math.radians(180)),
    Part.LineSegment(Vector(11.85526, 11.950004, 0), Vector(11.85526, 9.950004, 0)),
    Part.ArcOfCircle(Part.Circle(Vector(13.25526, 9.950004, 0), Vector(0, 0, 1), 1.4), math.radians(180), math.radians(360)),
    Part.LineSegment(Vector(14.65526, 9.950004, 0), Vector(14.65526, 11.950004, 0)),
    Part.ArcOfCircle(Part.Circle(Vector(7.750995, 15.516533, 0), Vector(0, 0, 1), 1.4), math.radians(90), math.radians(270)),
    Part.LineSegment(Vector(7.750995, 14.116533, 0), Vector(9.750995, 14.116533, 0)),
    Part.ArcOfCircle(Part.Circle(Vector(9.750995, 15.516533, 0), Vector(0, 0, 1), 1.4), math.radians(-90), math.radians(90)),
    Part.LineSegment(Vector(9.750995, 16.916533, 0), Vector(7.750995, 16.916533, 0)),
], False)
sketch11.addConstraint([
    Sketcher.Constraint("Tangent", 0, 2, 1, 1),
    Sketcher.Constraint("Tangent", 1, 2, 2, 1),
    Sketcher.Constraint("Tangent", 2, 2, 3, 1),
    Sketcher.Constraint("Tangent", 3, 2, 0, 1),
    Sketcher.Constraint("Tangent", 4, 2, 5, 1),
    Sketcher.Constraint("Tangent", 5, 2, 6, 1),
    Sketcher.Constraint("Tangent", 6, 2, 7, 1),
    Sketcher.Constraint("Tangent", 7, 2, 4, 1),
    Sketcher.Constraint("Tangent", 8, 2, 9, 1),
    Sketcher.Constraint("Tangent", 9, 2, 10, 1),
    Sketcher.Constraint("Tangent", 10, 2, 11, 1),
    Sketcher.Constraint("Tangent", 11, 2, 8, 1),
    Sketcher.Constraint("Tangent", 12, 2, 13, 1),
    Sketcher.Constraint("Tangent", 13, 2, 14, 1),
    Sketcher.Constraint("Tangent", 14, 2, 15, 1),
    Sketcher.Constraint("Tangent", 15, 2, 12, 1),
    Sketcher.Constraint("Vertical", 1),
    Sketcher.Constraint("Vertical", 3),
    Sketcher.Constraint("Horizontal", 5),
    Sketcher.Constraint("Horizontal", 7),
    Sketcher.Constraint("Vertical", 9),
    Sketcher.Constraint("Vertical", 11),
    Sketcher.Constraint("Horizontal", 13),
    Sketcher.Constraint("Horizontal", 15),
    Sketcher.Constraint("Equal", 2, 4),
    Sketcher.Constraint("Equal", 6, 8),
    Sketcher.Constraint("Equal", 10, 12),
    Sketcher.Constraint("Equal", 7, 13),
    Sketcher.Constraint("Equal", 15, 1),
    Sketcher.Constraint("Equal", 3, 9),
    Sketcher.Constraint("Radius", 0, Q("1.4 mm")),
    Sketcher.Constraint("DistanceX", 5, 1, 5, 2, Q("2 mm")),
    Sketcher.Constraint("DistanceX", -1, 1, 4, 3, Q("16.749231 mm")),
    Sketcher.Constraint("DistanceX", -1, 1, 8, 3, Q("13.25526 mm")),
    Sketcher.Constraint("DistanceY", -1, 1, 7, 2, Q("16.926618 mm")),
    Sketcher.Constraint("DistanceY", 4, 3, 0, 3, Q("3.566529 mm")),
    Sketcher.Constraint("DistanceY", 8, 3, 12, 3, Q("3.566529 mm")),
    Sketcher.Constraint("DistanceX", -1, 1, 0, 3, Q("13.244967 mm")),
    Sketcher.Constraint("DistanceY", -1, 1, 8, 3, Q("11.950004 mm")),
    Sketcher.Constraint("DistanceX", -1, 1, 12, 3, Q("7.750995 mm")),
])
sketch11.setExpression("Constraints[30]", "Params.sketch11_radius")
sketch11.setExpression("Constraints[31]", "Params.sketch11_width")
pocket6 = body.newObject("PartDesign::Pocket", "Pocket005")
pocket6.Profile = sketch11
pocket6.setExpression("Length", "Params.pocket6_length")

sketch12 = body.newObject("Sketcher::SketchObject", "Sketch011")
sketch12.AttachmentSupport = (doc.getObject("XY_Plane"), [""])
sketch12.MapMode = "FlatFace"
sketch12.AttachmentOffset = App.Placement(Vector(0, 0, 12), App.Rotation())
sketch12.addGeometry([
    Part.Circle(Vector(13.25, 15.6, 0), Vector(0, 0, 1), 9.5),
    Part.Circle(Vector(13.25, 15.6, 0), Vector(0, 0, 1), 6),
], False)
sketch12.addConstraint([
    Sketcher.Constraint("Coincident", 1, 3, 0, 3),
    Sketcher.Constraint("Diameter", 0, Q("19 mm")),
    Sketcher.Constraint("Diameter", 1, Q("12 mm")),
    Sketcher.Constraint("DistanceY", -1, 1, 0, 3, Q("15.6 mm")),
    Sketcher.Constraint("DistanceX", -1, 1, 0, 3, Q("13.25 mm")),
])
sketch12.setExpression("Constraints[1]", "Params.sketch12_diameter")
sketch12.setExpression("Constraints[2]", "Params.sketch12_diameter2")
pocket7 = body.newObject("PartDesign::Pocket", "Pocket006")
pocket7.Profile = sketch12
pocket7.setExpression("Length", "Params.pocket7_length")
doc.recompute()

fillet2 = body.newObject("PartDesign::Fillet", "Fillet001")
fillet2.Base = (pocket7, edges_at(pocket7, [
    (2, 15.6, -12),
    (3, 15.6, -12),
    (5.75, 15.6, -11),
    (0, 15.6, 0),
    (2.2, 15.6, 12),
    (3.75, 15.6, 12),
]))
fillet2.setExpression("Radius", "Params.fillet2_radius")

doc.recompute()
